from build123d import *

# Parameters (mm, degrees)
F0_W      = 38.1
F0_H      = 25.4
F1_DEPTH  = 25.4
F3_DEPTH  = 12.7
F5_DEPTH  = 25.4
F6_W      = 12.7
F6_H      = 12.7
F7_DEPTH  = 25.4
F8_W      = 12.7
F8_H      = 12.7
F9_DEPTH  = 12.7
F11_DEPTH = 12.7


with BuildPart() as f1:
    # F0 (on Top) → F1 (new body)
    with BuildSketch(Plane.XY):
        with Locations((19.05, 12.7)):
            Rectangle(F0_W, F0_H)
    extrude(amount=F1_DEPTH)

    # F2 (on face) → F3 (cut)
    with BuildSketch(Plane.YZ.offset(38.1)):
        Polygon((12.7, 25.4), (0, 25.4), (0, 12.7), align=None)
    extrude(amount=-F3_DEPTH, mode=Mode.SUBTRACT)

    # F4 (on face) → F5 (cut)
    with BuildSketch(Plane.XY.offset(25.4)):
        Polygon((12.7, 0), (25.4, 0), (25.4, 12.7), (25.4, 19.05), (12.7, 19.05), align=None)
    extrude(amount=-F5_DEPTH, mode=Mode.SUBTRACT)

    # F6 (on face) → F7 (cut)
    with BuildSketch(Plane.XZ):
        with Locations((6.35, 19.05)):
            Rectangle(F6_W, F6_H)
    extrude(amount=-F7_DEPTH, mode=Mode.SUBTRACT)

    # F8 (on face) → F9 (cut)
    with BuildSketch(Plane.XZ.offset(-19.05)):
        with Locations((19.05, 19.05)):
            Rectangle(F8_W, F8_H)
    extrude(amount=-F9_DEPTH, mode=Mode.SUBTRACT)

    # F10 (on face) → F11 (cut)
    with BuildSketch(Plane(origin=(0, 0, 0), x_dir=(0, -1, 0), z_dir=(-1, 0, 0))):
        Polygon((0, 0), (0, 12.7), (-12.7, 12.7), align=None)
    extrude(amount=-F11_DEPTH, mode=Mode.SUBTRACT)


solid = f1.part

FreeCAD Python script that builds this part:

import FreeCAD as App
import Part
import Sketcher
from FreeCAD import Vector
Q = App.Units.Quantity


def add_polygon(sketch, points):
    """Adds a closed chain of lines whose ends are joined by coincident constraints."""
    first, n = sketch.GeometryCount, len(points)
    for a, b in zip(points, points[1:] + points[:1]):
        sketch.addGeometry(Part.LineSegment(App.Vector(*a, 0), App.Vector(*b, 0)), False)
    for i in range(n):
        sketch.addConstraint(Sketcher.Constraint("Coincident", first + i, 2, first + (i + 1) % n, 1))

doc = App.newDocument("Part")
body = doc.addObject("PartDesign::Body", "Body")

# Sketch on XY plane
sketch1 = doc.addObject("Sketcher::SketchObject", "Sketch")
body.addObject(sketch1)
sketch1.AttachmentSupport = (doc.XY_Plane, [""])
sketch1.MapMode = "FlatFace"
add_polygon(sketch1, [(0, 25), (0, 0), (38, 0), (38, 25)])  # lines 0-3
sketch1.addConstraint([
    Sketcher.Constraint("Vertical", 0),
    Sketcher.Constraint("Horizontal", 1),
    Sketcher.Constraint("Vertical", 2),
    Sketcher.Constraint("Horizontal", 3),
    Sketcher.Constraint("Coincident", 0, 2, -1, 1),
    Sketcher.Constraint("DistanceY", 0, 2, 0, 1, Q("1 in")),
    Sketcher.Constraint("DistanceX", 1, 1, 1, 2, Q("1.5 in")),
])
pad1 = doc.addObject("PartDesign::Pad", "Pad")
body.addObject(pad1)
pad1.Profile = sketch1
pad1.Length = Q("1 in")

# Sketch on YZ plane
sketch2 = doc.addObject("Sketcher::SketchObject", "Sketch001")
body.addObject(sketch2)
sketch2.AttachmentSupport = (doc.YZ_Plane, [""])
sketch2.MapMode = "FlatFace"
sketch2.AttachmentOffset = App.Placement(Vector(0, 0, 1.5 * 25.4), App.Rotation())
add_polygon(sketch2, [(13, 25), (0, 25), (0, 13)])  # lines 0-2
sketch2.addConstraint([
    Sketcher.Constraint("Horizontal", 0),
    Sketcher.Constraint("Vertical", 1),
    Sketcher.Constraint("PointOnObject", 0, 2, -2),
    Sketcher.Constraint("Equal", 0, 1),
    Sketcher.Constraint("DistanceX", 0, 2, 0, 1, Q("0.5 in")),
    Sketcher.Constraint("DistanceY", -1, 1, 0, 2, Q("1 in")),
])
pocket1 = doc.addObject("PartDesign::Pocket", "Pocket")
body.addObject(pocket1)
pocket1.Profile = sketch2
pocket1.Length = Q("0.5 in")

# Sketch on XY plane
sketch3 = doc.addObject("Sketcher::SketchObject", "Sketch002")
body.addObject(sketch3)
sketch3.AttachmentSupport = (doc.XY_Plane, [""])
sketch3.MapMode = "FlatFace"
sketch3.AttachmentOffset = App.Placement(Vector(0, 0, 1 * 25.4), App.Rotation())
add_polygon(sketch3, [(13, 0), (25, 0), (25, 19), (13, 19)])  # lines 0-3
sketch3.addConstraint([
    Sketcher.Constraint("Horizontal", 0),
    Sketcher.Constraint("Vertical", 1),
    Sketcher.Constraint("Horizontal", 2),
    Sketcher.Constraint("Vertical", 3),
    Sketcher.Constraint("PointOnObject", 0, 2, -1),
    Sketcher.Constraint("DistanceX", 0, 1, 0, 2, Q("0.5 in")),
    Sketcher.Constraint("DistanceX", -1, 1, 0, 2, Q("1 in")),
    Sketcher.Constraint("DistanceY", 1, 1, 1, 2, Q("0.75 in")),
])
pocket2 = doc.addObject("PartDesign::Pocket", "Pocket001")
body.addObject(pocket2)
pocket2.Profile = sketch3
pocket2.Length = Q("1 in")

# Sketch on XZ plane
sketch4 = doc.addObject("Sketcher::SketchObject", "Sketch003")
body.addObject(sketch4)
sketch4.AttachmentSupport = (doc.XZ_Plane, [""])
sketch4.MapMode = "FlatFace"
add_polygon(sketch4, [(0, 25), (0, 13), (13, 13), (13, 25)])  # lines 0-3
sketch4.addConstraint([
    Sketcher.Constraint("Vertical", 0),
    Sketcher.Constraint("Horizontal", 1),
    Sketcher.Constraint("Vertical", 2),
    Sketcher.Constraint("Horizontal", 3),
    Sketcher.Constraint("PointOnObject", 0, 2, -2),
    Sketcher.Constraint("Equal", 3, 0),
    Sketcher.Constraint("DistanceX", 1, 1, 1, 2, Q("0.5 in")),
    Sketcher.Constraint("DistanceY", -1, 1, 2, 2, Q("1 in")),
])
pocket3 = doc.addObject("PartDesign::Pocket", "Pocket002")
body.addObject(pocket3)
pocket3.Profile = sketch4
pocket3.Length = Q("1 in")

# Sketch on XZ plane
sketch5 = doc.addObject("Sketcher::SketchObject", "Sketch004")
body.addObject(sketch5)
sketch5.AttachmentSupport = (doc.XZ_Plane, [""])
sketch5.MapMode = "FlatFace"
sketch5.AttachmentOffset = App.Placement(Vector(0, 0, -0.75 * 25.4), App.Rotation())
add_polygon(sketch5, [(13, 25), (13, 13), (25, 13), (25, 25)])  # lines 0-3
sketch5.addConstraint([
    Sketcher.Constraint("Vertical", 0),
    Sketcher.Constraint("Horizontal", 1),
    Sketcher.Constraint("Vertical", 2),
    Sketcher.Constraint("Horizontal", 3),
    Sketcher.Constraint("Equal", 3, 0),
    Sketcher.Constraint("DistanceX", 1, 1, 1, 2, Q("0.5 in")),
    Sketcher.Constraint("DistanceX", -1, 1, 1, 2, Q("1 in")),
    Sketcher.Constraint("DistanceY", -1, 1, 2, 2, Q("1 in")),
])
pocket4 = doc.addObject("PartDesign::Pocket", "Pocket003")
body.addObject(pocket4)
pocket4.Profile = sketch5
pocket4.Length = Q("0.5 in")

# Sketch on YZ plane
sketch6 = doc.addObject("Sketcher::SketchObject", "Sketch005")
body.addObject(sketch6)
sketch6.AttachmentSupport = (doc.YZ_Plane, [""])
sketch6.MapMode = "FlatFace"
add_polygon(sketch6, [(0, 0), (0, 13), (13, 13)])  # lines 0-2
sketch6.addConstraint([
    Sketcher.Constraint("Vertical", 0),
    Sketcher.Constraint("Horizontal", 1),
    Sketcher.Constraint("Coincident", 2, 2, -1, 1),
    Sketcher.Constraint("Equal", 1, 0),
    Sketcher.Constraint("DistanceX", 1, 1, 1, 2, Q("0.5 in")),
])
pocket5 = doc.addObject("PartDesign::Pocket", "Pocket004")
body.addObject(pocket5)
pocket5.Profile = sketch6
pocket5.Length = Q("0.5 in")
pocket5.Reversed = True

doc.recompute()
